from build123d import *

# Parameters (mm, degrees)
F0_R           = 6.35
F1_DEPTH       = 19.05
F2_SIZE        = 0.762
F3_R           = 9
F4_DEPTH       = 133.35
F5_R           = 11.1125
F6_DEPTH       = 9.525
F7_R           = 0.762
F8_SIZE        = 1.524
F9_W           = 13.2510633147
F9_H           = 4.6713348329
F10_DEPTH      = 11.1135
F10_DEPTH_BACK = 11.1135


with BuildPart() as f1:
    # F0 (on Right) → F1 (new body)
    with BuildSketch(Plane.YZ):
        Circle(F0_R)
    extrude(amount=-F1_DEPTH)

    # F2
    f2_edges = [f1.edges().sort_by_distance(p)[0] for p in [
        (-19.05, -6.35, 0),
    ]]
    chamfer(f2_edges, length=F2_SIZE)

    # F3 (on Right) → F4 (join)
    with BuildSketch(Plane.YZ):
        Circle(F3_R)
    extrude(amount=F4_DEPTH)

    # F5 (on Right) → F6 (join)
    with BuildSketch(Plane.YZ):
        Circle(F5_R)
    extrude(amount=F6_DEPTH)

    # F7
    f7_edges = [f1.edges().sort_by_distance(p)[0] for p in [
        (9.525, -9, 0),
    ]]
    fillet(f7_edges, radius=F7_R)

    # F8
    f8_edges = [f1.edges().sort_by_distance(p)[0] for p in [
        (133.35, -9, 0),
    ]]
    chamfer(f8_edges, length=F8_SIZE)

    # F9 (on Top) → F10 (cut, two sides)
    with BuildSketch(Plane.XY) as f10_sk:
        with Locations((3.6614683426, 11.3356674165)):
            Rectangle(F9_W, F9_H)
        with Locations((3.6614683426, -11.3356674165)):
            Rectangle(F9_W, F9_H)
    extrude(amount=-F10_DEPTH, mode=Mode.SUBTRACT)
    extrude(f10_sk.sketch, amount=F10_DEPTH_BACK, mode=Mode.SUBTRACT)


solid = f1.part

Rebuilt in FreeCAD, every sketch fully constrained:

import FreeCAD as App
import Part
import Sketcher

V = App.Vector
Q = App.Units.Quantity


def edges_at(feature, points):
    """Names of the edges that pass closest to the given points."""
    edges = feature.Shape.Edges
    near = lambda p: min(range(len(edges)), key=lambda i: edges[i].distToShape(Part.Vertex(*p))[0])
    return sorted({f"Edge{near(p) + 1}" for p in points})


def add_polygon(sketch, points):
    """Adds a closed chain of lines whose ends are joined by coincident constraints."""
    first, n = sketch.GeometryCount, len(points)
    for a, b in zip(points, points[1:] + points[:1]):
        sketch.addGeometry(Part.LineSegment(App.Vector(*a, 0), App.Vector(*b, 0)), False)
    for i in range(n):
        sketch.addConstraint(Sketcher.Constraint("Coincident", first + i, 2, first + (i + 1) % n, 1))

doc = App.newDocument("Part")
body = doc.addObject("PartDesign::Body", "Body")

# Sketch on YZ plane
sketch1 = doc.addObject("Sketcher::SketchObject", "Sketch")
body.addObject(sketch1)
sketch1.AttachmentSupport = (doc.YZ_Plane, [""])
sketch1.MapMode = "FlatFace"
sketch1.addGeometry(Part.Circle(V(0, 0, 0), V(0, 0, 1), 6), False)
sketch1.addConstraint([
    Sketcher.Constraint("Coincident", 0, 3, -1, 1),
    Sketcher.Constraint("Diameter", 0, Q("0.5 in")),
])
pad1 = doc.addObject("PartDesign::Pad", "Pad")
body.addObject(pad1)
pad1.Profile = sketch1
pad1.Length = Q("0.75 in")
pad1.Reversed = True
doc.recompute()

chamfer = doc.addObject("PartDesign::Chamfer", "Chamfer")
body.addObject(chamfer)
chamfer.Base = (pad1, edges_at(pad1, [(-19.05, -6.35, 0)]))
chamfer.Size = Q("0.03 in")

# Sketch on YZ plane
sketch2 = doc.addObject("Sketcher::SketchObject", "Sketch001")
body.addObject(sketch2)
sketch2.AttachmentSupport = (doc.YZ_Plane, [""])
sketch2.MapMode = "FlatFace"
sketch2.addGeometry(Part.Circle(V(0, 0, 0), V(0, 0, 1), 9), False)
sketch2.addConstraint([
    Sketcher.Constraint("Coincident", 0, 3, -1, 1),
    Sketcher.Constraint("Diameter", 0, Q("18 mm")),
])
pad2 = doc.addObject("PartDesign::Pad", "Pad001")
body.addObject(pad2)
pad2.Profile = sketch2
pad2.Length = Q("5.25 in")

# Sketch on YZ plane
sketch3 = doc.addObject("Sketcher::SketchObject", "Sketch002")
body.addObject(sketch3)
sketch3.AttachmentSupport = (doc.YZ_Plane, [""])
sketch3.MapMode = "FlatFace"
sketch3.addGeometry(Part.Circle(V(0, 0, 0), V(0, 0, 1), 11), False)
sketch3.addConstraint([
    Sketcher.Constraint("Coincident", 0, 3, -1, 1),
    Sketcher.Constraint("Diameter", 0, Q("0.875 in")),
])
pad3 = doc.addObject("PartDesign::Pad", "Pad002")
body.addObject(pad3)
pad3.Profile = sketch3
pad3.Length = Q("0.375 in")
doc.recompute()

fillet = doc.addObject("PartDesign::Fillet", "Fillet")
body.addObject(fillet)
fillet.Base = (pad3, edges_at(pad3, [(9.525, -9, 0)]))
fillet.Radius = Q("0.03 in")
doc.recompute()

chamfer2 = doc.addObject("PartDesign::Chamfer", "Chamfer001")
body.addObject(chamfer2)
chamfer2.Base = (fillet, edges_at(fillet, [(133.35, -9, 0)]))
chamfer2.Size = Q("0.06 in")

# Sketch on XY plane
sketch4 = doc.addObject("Sketcher::SketchObject", "Sketch003")
body.addObject(sketch4)
sketch4.AttachmentSupport = (doc.XY_Plane, [""])
sketch4.MapMode = "FlatFace"
add_polygon(sketch4, [(-3, 13.7), (-3, 9), (10.3, 9), (10.3, 13.7)])  # lines 0-3
add_polygon(sketch4, [(-3, -9), (-3, -13.7), (10.3, -13.7), (10.3, -9)])  # lines 4-7
sketch4.addConstraint([
    Sketcher.Constraint("Vertical", 0),
    Sketcher.Constraint("Horizontal", 1),
    Sketcher.Constraint("Vertical", 2),
    Sketcher.Constraint("Horizontal", 3),
    Sketcher.Constraint("Vertical", 4),
    Sketcher.Constraint("Horizontal", 5),
    Sketcher.Constraint("Vertical", 6),
    Sketcher.Constraint("Horizontal", 7),
    Sketcher.Constraint("Symmetric", 3, 2, 4, 2, -1),
    Sketcher.Constraint("Symmetric", 1, 2, 6, 2, -1),
    Sketcher.Constraint("DistanceX", -1, 1, 1, 2, Q("0.405 in")),
    Sketcher.Constraint("DistanceY", -1, 1, 0, 2, Q("9 mm")),
    Sketcher.Constraint("DistanceX", 1, 1, 1, 2, Q("13.251063 mm")),
    Sketcher.Constraint("DistanceY", 0, 2, 0, 1, Q("4.671335 mm")),
])
pocket1 = doc.addObject("PartDesign::Pocket", "Pocket")
body.addObject(pocket1)
pocket1.Profile = sketch4
pocket1.Type = "ThroughAll"
pocket1.Midplane = True

doc.recompute()
